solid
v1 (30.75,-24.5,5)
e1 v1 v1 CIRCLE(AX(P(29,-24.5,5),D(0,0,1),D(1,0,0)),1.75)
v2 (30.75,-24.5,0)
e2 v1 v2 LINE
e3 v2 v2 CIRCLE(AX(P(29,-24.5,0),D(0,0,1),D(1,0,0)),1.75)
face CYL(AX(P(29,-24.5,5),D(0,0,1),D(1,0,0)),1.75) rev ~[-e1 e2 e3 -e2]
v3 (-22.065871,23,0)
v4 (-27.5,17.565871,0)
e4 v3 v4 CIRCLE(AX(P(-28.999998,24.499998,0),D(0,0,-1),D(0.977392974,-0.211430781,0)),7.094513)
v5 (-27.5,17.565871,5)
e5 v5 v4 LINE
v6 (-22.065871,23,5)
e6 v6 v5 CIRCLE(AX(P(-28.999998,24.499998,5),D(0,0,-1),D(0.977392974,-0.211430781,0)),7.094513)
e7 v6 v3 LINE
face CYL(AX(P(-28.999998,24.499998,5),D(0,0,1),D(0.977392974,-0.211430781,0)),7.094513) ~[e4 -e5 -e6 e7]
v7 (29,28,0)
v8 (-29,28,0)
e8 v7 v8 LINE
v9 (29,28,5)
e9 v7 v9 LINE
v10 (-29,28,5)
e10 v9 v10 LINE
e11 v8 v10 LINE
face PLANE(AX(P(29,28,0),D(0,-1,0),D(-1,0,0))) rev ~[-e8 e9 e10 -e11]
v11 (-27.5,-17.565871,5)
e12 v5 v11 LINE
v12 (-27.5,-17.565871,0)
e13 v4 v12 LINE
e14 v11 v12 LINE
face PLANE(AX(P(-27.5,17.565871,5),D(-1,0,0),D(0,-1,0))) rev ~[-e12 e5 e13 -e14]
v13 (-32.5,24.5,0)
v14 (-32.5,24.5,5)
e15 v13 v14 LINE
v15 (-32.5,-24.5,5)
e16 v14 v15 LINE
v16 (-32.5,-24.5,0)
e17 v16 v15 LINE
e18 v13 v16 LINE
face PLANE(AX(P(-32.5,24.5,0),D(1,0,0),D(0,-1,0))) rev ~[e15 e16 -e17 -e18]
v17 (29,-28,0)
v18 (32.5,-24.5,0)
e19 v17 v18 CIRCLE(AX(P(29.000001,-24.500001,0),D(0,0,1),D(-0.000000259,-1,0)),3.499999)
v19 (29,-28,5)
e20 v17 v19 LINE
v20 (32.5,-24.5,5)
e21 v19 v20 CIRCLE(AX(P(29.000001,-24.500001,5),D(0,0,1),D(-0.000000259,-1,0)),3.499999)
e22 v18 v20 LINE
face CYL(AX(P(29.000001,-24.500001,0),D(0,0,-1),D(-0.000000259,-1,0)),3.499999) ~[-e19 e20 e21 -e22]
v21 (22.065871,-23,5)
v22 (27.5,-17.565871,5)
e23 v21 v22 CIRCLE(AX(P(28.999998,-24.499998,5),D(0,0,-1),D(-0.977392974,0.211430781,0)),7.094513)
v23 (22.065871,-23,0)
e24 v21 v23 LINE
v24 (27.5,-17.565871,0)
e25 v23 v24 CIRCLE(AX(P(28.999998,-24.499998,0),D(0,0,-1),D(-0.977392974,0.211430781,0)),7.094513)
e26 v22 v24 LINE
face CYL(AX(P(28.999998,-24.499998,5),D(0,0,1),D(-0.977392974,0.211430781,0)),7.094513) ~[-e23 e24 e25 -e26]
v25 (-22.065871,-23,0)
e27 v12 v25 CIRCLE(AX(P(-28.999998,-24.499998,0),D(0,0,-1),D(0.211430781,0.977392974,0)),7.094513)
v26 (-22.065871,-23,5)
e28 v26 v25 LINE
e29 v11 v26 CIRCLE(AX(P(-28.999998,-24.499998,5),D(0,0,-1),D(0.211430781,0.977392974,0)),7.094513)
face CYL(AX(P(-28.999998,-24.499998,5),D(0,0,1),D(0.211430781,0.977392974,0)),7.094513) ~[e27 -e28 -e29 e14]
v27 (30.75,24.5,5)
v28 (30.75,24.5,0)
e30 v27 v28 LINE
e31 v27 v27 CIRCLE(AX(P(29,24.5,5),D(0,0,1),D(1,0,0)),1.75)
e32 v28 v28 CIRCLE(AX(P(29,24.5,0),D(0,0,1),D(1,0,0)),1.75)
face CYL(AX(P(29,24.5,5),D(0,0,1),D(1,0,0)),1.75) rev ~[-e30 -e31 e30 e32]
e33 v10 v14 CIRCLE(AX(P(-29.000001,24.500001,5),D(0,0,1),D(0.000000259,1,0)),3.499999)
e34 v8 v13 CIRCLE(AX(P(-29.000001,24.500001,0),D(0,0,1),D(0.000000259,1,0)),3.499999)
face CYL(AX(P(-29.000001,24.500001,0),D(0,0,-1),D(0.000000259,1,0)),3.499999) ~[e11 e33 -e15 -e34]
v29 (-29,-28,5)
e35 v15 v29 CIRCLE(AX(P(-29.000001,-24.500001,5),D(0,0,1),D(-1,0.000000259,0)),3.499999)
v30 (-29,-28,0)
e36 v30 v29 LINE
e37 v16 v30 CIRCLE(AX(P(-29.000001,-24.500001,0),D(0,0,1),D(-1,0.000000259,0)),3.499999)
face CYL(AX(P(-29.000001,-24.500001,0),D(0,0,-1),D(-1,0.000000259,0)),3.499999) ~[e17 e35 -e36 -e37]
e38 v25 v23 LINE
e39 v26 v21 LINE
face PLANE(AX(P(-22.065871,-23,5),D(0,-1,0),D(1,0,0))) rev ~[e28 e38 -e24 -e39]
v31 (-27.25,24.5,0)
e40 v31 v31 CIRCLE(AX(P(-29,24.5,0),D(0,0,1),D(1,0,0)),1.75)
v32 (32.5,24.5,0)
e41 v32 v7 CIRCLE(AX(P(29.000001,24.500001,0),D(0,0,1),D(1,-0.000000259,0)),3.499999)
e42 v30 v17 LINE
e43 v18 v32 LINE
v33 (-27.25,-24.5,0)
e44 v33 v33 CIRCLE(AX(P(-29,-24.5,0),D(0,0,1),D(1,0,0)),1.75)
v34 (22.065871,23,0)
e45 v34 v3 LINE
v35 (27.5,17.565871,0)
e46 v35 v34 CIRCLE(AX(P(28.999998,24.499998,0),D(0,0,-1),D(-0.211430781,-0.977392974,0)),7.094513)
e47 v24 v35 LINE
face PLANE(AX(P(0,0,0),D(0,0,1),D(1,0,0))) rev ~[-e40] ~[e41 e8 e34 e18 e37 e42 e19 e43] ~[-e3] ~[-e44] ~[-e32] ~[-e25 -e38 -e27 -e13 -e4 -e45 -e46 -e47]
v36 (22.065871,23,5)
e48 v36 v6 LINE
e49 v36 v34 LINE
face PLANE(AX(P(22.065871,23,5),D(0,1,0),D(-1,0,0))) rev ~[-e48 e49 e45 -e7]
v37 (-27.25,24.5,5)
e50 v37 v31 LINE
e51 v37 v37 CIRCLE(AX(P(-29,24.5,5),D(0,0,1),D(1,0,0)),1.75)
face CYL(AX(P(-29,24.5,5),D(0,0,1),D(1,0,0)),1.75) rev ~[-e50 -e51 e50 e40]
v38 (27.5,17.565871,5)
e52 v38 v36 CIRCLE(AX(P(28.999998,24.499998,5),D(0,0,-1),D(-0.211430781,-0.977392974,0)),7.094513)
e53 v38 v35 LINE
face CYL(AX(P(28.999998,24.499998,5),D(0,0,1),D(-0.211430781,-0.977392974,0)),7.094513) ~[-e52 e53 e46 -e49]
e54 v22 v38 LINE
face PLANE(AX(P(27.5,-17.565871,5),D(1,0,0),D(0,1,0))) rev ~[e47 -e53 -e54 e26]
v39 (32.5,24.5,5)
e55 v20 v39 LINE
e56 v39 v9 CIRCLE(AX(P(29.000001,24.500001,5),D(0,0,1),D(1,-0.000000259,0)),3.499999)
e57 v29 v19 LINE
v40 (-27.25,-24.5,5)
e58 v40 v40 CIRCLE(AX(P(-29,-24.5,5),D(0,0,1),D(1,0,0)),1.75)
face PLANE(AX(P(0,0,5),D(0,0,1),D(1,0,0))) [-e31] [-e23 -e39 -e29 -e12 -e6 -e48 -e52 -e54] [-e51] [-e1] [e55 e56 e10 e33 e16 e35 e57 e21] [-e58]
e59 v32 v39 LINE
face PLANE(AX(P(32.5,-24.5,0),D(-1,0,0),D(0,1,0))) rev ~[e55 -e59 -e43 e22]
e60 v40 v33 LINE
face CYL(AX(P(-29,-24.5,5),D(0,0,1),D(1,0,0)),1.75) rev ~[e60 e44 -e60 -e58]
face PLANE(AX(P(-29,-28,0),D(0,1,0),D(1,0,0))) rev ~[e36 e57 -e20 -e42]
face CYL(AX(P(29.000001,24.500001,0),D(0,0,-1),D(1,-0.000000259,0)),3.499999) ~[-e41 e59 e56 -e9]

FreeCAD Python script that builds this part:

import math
import FreeCAD as App
import Part
import Sketcher

doc = App.newDocument("Part")
body = doc.addObject("PartDesign::Body", "Body")

# Sketch on XY plane
sketch1 = doc.addObject("Sketcher::SketchObject", "Sketch")
body.addObject(sketch1)
sketch1.AttachmentSupport = (doc.XY_Plane, [""])
sketch1.MapMode = "FlatFace"
sketch1.addGeometry([
    Part.LineSegment(App.Vector(-29, -28, 0), App.Vector(29, -28, 0)),  # 0
    Part.ArcOfCircle(Part.Circle(App.Vector(29, -24.5, 0), App.Vector(0, 0, 1), 3.5), math.radians(-90), math.radians(0)),  # 1
    Part.LineSegment(App.Vector(32.5, -24.5, 0), App.Vector(32.5, 24.5, 0)),  # 2
    Part.ArcOfCircle(Part.Circle(App.Vector(29, 24.5, 0), App.Vector(0, 0, 1), 3.5), math.radians(0), math.radians(90)),  # 3
    Part.LineSegment(App.Vector(29, 28, 0), App.Vector(-29, 28, 0)),  # 4
    Part.ArcOfCircle(Part.Circle(App.Vector(-29, 24.5, 0), App.Vector(0, 0, 1), 3.5), math.radians(90), math.radians(180)),  # 5
    Part.LineSegment(App.Vector(-32.5, 24.5, 0), App.Vector(-32.5, -24.5, 0)),  # 6
    Part.ArcOfCircle(Part.Circle(App.Vector(-29, -24.5, 0), App.Vector(0, 0, 1), 3.5), math.radians(180), math.radians(270)),  # 7
], False)
sketch1.addConstraint([
    Sketcher.Constraint("Tangent", 0, 2, 1, 1),
    Sketcher.Constraint("Tangent", 1, 2, 2, 1),
    Sketcher.Constraint("Tangent", 2, 2, 3, 1),
    Sketcher.Constraint("Tangent", 3, 2, 4, 1),
    Sketcher.Constraint("Tangent", 4, 2, 5, 1),
    Sketcher.Constraint("Tangent", 5, 2, 6, 1),
    Sketcher.Constraint("Tangent", 6, 2, 7, 1),
    Sketcher.Constraint("Tangent", 7, 2, 0, 1),
    Sketcher.Constraint("Horizontal", 0),
    Sketcher.Constraint("Vertical", 2),
    Sketcher.Constraint("Horizontal", 4),
    Sketcher.Constraint("Vertical", 6),
    Sketcher.Constraint("Equal", 1, 3),
    Sketcher.Constraint("Equal", 3, 5),
    Sketcher.Constraint("Equal", 5, 7),
    Sketcher.Constraint("Symmetric", 1, 3, 5, 3, -1, 1),
    Sketcher.Constraint("Radius", 1, 3.499999),
    Sketcher.Constraint("DistanceX", 0, 1, 0, 2, 58.0),
    Sketcher.Constraint("DistanceY", 2, 1, 2, 2, 49.0),
])
pad1 = doc.addObject("PartDesign::Pad", "Pad")
body.addObject(pad1)
pad1.Profile = sketch1
pad1.Length = 5

# Sketch on XY plane
sketch2 = doc.addObject("Sketcher::SketchObject", "Sketch001")
body.addObject(sketch2)
sketch2.AttachmentSupport = (doc.XY_Plane, [""])
sketch2.MapMode = "FlatFace"
sketch2.AttachmentOffset = App.Placement(App.Vector(0, 0, 5), App.Rotation())
sketch2.addGeometry([
    Part.Circle(App.Vector(-29, 24.5, 0), App.Vector(0, 0, 1), 1.8),
    Part.Circle(App.Vector(29, 24.5, 0), App.Vector(0, 0, 1), 1.8),
    Part.Circle(App.Vector(29, -24.5, 0), App.Vector(0, 0, 1), 1.8),
    Part.Circle(App.Vector(-29, -24.5, 0), App.Vector(0, 0, 1), 1.8),
], False)
sketch2.addConstraint([
    Sketcher.Constraint("Equal", 0, 1),
    Sketcher.Constraint("Equal", 1, 2),
    Sketcher.Constraint("Equal", 2, 3),
    Sketcher.Constraint("Symmetric", 0, 3, 2, 3, -1, 1),
    Sketcher.Constraint("Symmetric", 1, 3, 3, 3, -1, 1),
    Sketcher.Constraint("Symmetric", 0, 3, 1, 3, -2),
    Sketcher.Constraint("Diameter", 0, 3.5),
    Sketcher.Constraint("DistanceX", 0, 3, -1, 1, 29.0),
    Sketcher.Constraint("DistanceY", 2, 3, 1, 3, 49.0),
])
pocket1 = doc.addObject("PartDesign::Pocket", "Pocket")
body.addObject(pocket1)
pocket1.Profile = sketch2
pocket1.Length = 5

# Sketch on XY plane
sketch3 = doc.addObject("Sketcher::SketchObject", "Sketch002")
body.addObject(sketch3)
sketch3.AttachmentSupport = (doc.XY_Plane, [""])
sketch3.MapMode = "FlatFace"
sketch3.AttachmentOffset = App.Placement(App.Vector(0, 0, 5), App.Rotation())
sketch3.addGeometry([
    Part.LineSegment(App.Vector(22, 23, 0), App.Vector(-22, 23, 0)),  # 0
    Part.ArcOfCircle(Part.Circle(App.Vector(-29, 24, 0), App.Vector(0, 0, 1), 7), math.radians(-78), math.radians(-12)),  # 1
    Part.LineSegment(App.Vector(-28, 18, 0), App.Vector(-28, -18, 0)),  # 2
    Part.ArcOfCircle(Part.Circle(App.Vector(-29, -24, 0), App.Vector(0, 0, 1), 7), math.radians(12), math.radians(78)),  # 3
    Part.LineSegment(App.Vector(-22, -23, 0), App.Vector(22, -23, 0)),  # 4
    Part.ArcOfCircle(Part.Circle(App.Vector(29, -24, 0), App.Vector(0, 0, 1), 7), math.radians(102), math.radians(168)),  # 5
    Part.LineSegment(App.Vector(28, -18, 0), App.Vector(28, 18, 0)),  # 6
    Part.ArcOfCircle(Part.Circle(App.Vector(29, 24, 0), App.Vector(0, 0, 1), 7), math.radians(-168), math.radians(-102)),  # 7
], False)
sketch3.addConstraint([
    Sketcher.Constraint("Coincident", 0, 2, 1, 2),
    Sketcher.Constraint("Coincident", 1, 1, 2, 1),
    Sketcher.Constraint("Coincident", 2, 2, 3, 2),
    Sketcher.Constraint("Coincident", 3, 1, 4, 1),
    Sketcher.Constraint("Coincident", 4, 2, 5, 2),
    Sketcher.Constraint("Coincident", 5, 1, 6, 1),
    Sketcher.Constraint("Coincident", 6, 2, 7, 2),
    Sketcher.Constraint("Coincident", 7, 1, 0, 1),
    Sketcher.Constraint("Horizontal", 0),
    Sketcher.Constraint("Vertical", 2),
    Sketcher.Constraint("Horizontal", 4),
    Sketcher.Constraint("Vertical", 6),
    Sketcher.Constraint("Equal", 1, 3),
    Sketcher.Constraint("Equal", 3, 5),
    Sketcher.Constraint("Equal", 5, 7),
    Sketcher.Constraint("Symmetric", 1, 3, 5, 3, -1, 1),
    Sketcher.Constraint("Symmetric", 3, 3, 7, 3, -1, 1),
    Sketcher.Constraint("Symmetric", 3, 3, 5, 3, -2),
    Sketcher.Constraint("Horizontal", 2, 2, 5, 1),
    Sketcher.Constraint("Vertical", 0, 2, 3, 1),
    Sketcher.Constraint("DistanceX", 1, 3, -1, 1, 28.999998),
    Sketcher.Constraint("DistanceY", -1, 1, 0, 2, 23.0),
    Sketcher.Constraint("DistanceX", 2, 2, 5, 1, 55.0),
    Sketcher.Constraint("DistanceY", -1, 1, 1, 3, 24.499998),
    Sketcher.Constraint("Radius", 1, 7.094513),
])
pocket2 = doc.addObject("PartDesign::Pocket", "Pocket001")
body.addObject(pocket2)
pocket2.Profile = sketch3
pocket2.Length = 5

doc.recompute()
